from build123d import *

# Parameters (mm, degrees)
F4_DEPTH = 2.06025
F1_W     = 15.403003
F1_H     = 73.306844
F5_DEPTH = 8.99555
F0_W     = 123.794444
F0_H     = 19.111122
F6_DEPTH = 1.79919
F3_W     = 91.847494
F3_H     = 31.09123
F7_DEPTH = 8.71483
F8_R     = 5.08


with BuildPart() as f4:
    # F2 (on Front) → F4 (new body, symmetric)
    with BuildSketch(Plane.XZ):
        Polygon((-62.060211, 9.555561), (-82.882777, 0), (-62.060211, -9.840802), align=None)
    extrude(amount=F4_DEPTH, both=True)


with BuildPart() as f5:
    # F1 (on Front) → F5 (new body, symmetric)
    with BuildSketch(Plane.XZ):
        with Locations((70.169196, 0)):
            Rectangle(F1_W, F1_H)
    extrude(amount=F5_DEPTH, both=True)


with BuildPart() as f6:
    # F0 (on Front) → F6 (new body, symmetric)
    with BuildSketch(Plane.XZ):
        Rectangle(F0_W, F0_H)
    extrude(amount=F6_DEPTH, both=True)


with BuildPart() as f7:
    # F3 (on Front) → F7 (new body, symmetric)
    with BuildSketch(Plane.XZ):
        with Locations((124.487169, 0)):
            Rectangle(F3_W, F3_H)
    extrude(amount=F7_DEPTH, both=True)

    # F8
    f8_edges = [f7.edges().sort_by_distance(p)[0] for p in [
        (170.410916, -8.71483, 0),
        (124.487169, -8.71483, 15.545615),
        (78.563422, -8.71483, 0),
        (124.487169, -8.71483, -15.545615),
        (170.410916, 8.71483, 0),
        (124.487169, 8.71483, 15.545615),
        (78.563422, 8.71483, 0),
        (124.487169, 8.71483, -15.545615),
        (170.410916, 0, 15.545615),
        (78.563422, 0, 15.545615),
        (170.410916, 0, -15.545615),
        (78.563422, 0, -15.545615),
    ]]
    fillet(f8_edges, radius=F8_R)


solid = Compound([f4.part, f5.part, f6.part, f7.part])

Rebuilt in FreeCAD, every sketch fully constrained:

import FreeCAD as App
import Part
import Sketcher

V = App.Vector
Q = App.Units.Quantity


def add_polygon(sketch, points):
    """Adds a closed chain of lines whose ends are joined by coincident constraints."""
    first, n = sketch.GeometryCount, len(points)
    for a, b in zip(points, points[1:] + points[:1]):
        sketch.addGeometry(Part.LineSegment(App.Vector(*a, 0), App.Vector(*b, 0)), False)
    for i in range(n):
        sketch.addConstraint(Sketcher.Constraint("Coincident", first + i, 2, first + (i + 1) % n, 1))

doc = App.newDocument("Part")
body = doc.addObject("PartDesign::Body", "Body")

sketch1 = body.newObject("Sketcher::SketchObject", "Sketch")
sketch1.AttachmentSupport = (doc.getObject("XZ_Plane"), [""])
sketch1.MapMode = "FlatFace"
add_polygon(sketch1, [(-62, 10), (-83, 0), (-62, -10)])
sketch1.addConstraint(Sketcher.Constraint("Vertical", 2))
sketch1.addConstraint(Sketcher.Constraint("PointOnObject", 0, 2, -1))
sketch1.addConstraint(Sketcher.Constraint("DistanceY", 2, 1, 2, 2, Q("19.396363 mm")))
sketch1.addConstraint(Sketcher.Constraint("DistanceX", 1, 2, -1, 1, Q("62.060211 mm")))
sketch1.addConstraint(Sketcher.Constraint("DistanceY", -1, 1, 2, 2, Q("9.555561 mm")))
sketch1.addConstraint(Sketcher.Constraint("Distance", 0, Q("22.910434 mm")))
pad1 = body.newObject("PartDesign::Pad", "Pad")
pad1.Profile = sketch1
pad1.Length = 4.1205
pad1.Midplane = True
body2 = doc.addObject("PartDesign::Body", "Body001")

sketch2 = body2.newObject("Sketcher::SketchObject", "Sketch001")
sketch2.AttachmentSupport = (doc.getObject("XZ_Plane001"), [""])
sketch2.MapMode = "FlatFace"
add_polygon(sketch2, [(62, 37), (62, -37), (78, -37), (78, 37)])
sketch2.addConstraint(Sketcher.Constraint("Vertical", 0))
sketch2.addConstraint(Sketcher.Constraint("Horizontal", 1))
sketch2.addConstraint(Sketcher.Constraint("Vertical", 2))
sketch2.addConstraint(Sketcher.Constraint("Horizontal", 3))
sketch2.addConstraint(Sketcher.Constraint("DistanceX", 1, 1, 1, 2, Q("15.403003 mm")))
sketch2.addConstraint(Sketcher.Constraint("DistanceY", 0, 2, 0, 1, Q("73.306844 mm")))
sketch2.addConstraint(Sketcher.Constraint("DistanceX", -1, 1, 0, 2, Q("62.467695 mm")))
sketch2.addConstraint(Sketcher.Constraint("DistanceY", 0, 2, -1, 1, Q("36.653422 mm")))
pad2 = body2.newObject("PartDesign::Pad", "Pad001")
pad2.Profile = sketch2
pad2.Length = 17.9911
pad2.Midplane = True
body3 = doc.addObject("PartDesign::Body", "Body002")

sketch3 = body3.newObject("Sketcher::SketchObject", "Sketch002")
sketch3.AttachmentSupport = (doc.getObject("XZ_Plane002"), [""])
sketch3.MapMode = "FlatFace"
add_polygon(sketch3, [(-62, 10), (-62, -10), (62, -10), (62, 10)])
sketch3.addConstraint(Sketcher.Constraint("Vertical", 0))
sketch3.addConstraint(Sketcher.Constraint("Horizontal", 1))
sketch3.addConstraint(Sketcher.Constraint("Vertical", 2))
sketch3.addConstraint(Sketcher.Constraint("Horizontal", 3))
sketch3.addConstraint(Sketcher.Constraint("Symmetric", 0, 2, 2, 2, -1, 1))
sketch3.addConstraint(Sketcher.Constraint("DistanceX", 1, 1, 1, 2, Q("123.794444 mm")))
sketch3.addConstraint(Sketcher.Constraint("DistanceY", 0, 2, 0, 1, Q("19.111122 mm")))
pad3 = body3.newObject("PartDesign::Pad", "Pad002")
pad3.Profile = sketch3
pad3.Length = 3.59838
pad3.Midplane = True
body4 = doc.addObject("PartDesign::Body", "Body003")

sketch4 = body4.newObject("Sketcher::SketchObject", "Sketch003")
sketch4.AttachmentSupport = (doc.getObject("XZ_Plane003"), [""])
sketch4.MapMode = "FlatFace"
add_polygon(sketch4, [(79, 16), (79, -16), (170, -16), (170, 16)])
sketch4.addConstraint(Sketcher.Constraint("Vertical", 0))
sketch4.addConstraint(Sketcher.Constraint("Horizontal", 1))
sketch4.addConstraint(Sketcher.Constraint("Vertical", 2))
sketch4.addConstraint(Sketcher.Constraint("Horizontal", 3))
sketch4.addConstraint(Sketcher.Constraint("DistanceY", 0, 2, 0, 1, Q("31.09123 mm")))
sketch4.addConstraint(Sketcher.Constraint("DistanceX", 1, 1, 1, 2, Q("91.847494 mm")))
sketch4.addConstraint(Sketcher.Constraint("DistanceX", -1, 1, 0, 2, Q("78.563422 mm")))
sketch4.addConstraint(Sketcher.Constraint("DistanceY", 0, 2, -1, 1, Q("15.545615 mm")))
pad4 = body4.newObject("PartDesign::Pad", "Pad003")
pad4.Profile = sketch4
pad4.Length = 17.42966
pad4.Midplane = True
doc.recompute()

fillet = body4.newObject("PartDesign::Fillet", "Fillet")
fillet.Base = (pad4, ["Edge1"])
fillet.UseAllEdges = True
fillet.Radius = Q("0.2 in")

doc.recompute()
